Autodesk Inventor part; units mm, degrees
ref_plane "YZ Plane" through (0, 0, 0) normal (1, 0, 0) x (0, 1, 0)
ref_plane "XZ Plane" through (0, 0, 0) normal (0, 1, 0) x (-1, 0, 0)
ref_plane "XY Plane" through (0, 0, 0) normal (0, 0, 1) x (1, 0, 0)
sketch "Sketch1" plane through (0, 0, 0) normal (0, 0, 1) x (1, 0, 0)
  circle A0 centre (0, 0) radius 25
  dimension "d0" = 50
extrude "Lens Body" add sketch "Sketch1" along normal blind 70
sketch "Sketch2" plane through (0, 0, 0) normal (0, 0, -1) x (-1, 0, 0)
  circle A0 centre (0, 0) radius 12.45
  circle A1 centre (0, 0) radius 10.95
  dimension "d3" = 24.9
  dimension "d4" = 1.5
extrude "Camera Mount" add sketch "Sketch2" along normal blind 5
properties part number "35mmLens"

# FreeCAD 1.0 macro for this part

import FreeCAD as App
import Part
import Sketcher
from FreeCAD import Vector

doc = App.newDocument("Part")
body = doc.addObject("PartDesign::Body", "Body")

sketch1 = body.newObject("Sketcher::SketchObject", "Sketch")
sketch1.AttachmentSupport = (doc.getObject("XY_Plane"), [""])
sketch1.MapMode = "FlatFace"
sketch1.addGeometry(Part.Circle(Vector(0, 0, 0), Vector(0, 0, 1), 25), False)
sketch1.addConstraint([
    Sketcher.Constraint("Coincident", 0, 3, -1, 1),
    Sketcher.Constraint("Diameter", 0, 50.0),
])
pad1 = body.newObject("PartDesign::Pad", "Pad")
pad1.Profile = sketch1
pad1.Length = 70

sketch2 = body.newObject("Sketcher::SketchObject", "Sketch001")
sketch2.AttachmentSupport = (doc.getObject("XY_Plane"), [""])
sketch2.MapMode = "FlatFace"
sketch2.addGeometry([
    Part.Circle(Vector(0, 0, 0), Vector(0, 0, 1), 12),
    Part.Circle(Vector(0, 0, 0), Vector(0, 0, 1), 11),
], False)
sketch2.addConstraint([
    Sketcher.Constraint("Coincident", 0, 3, -1, 1),
    Sketcher.Constraint("Coincident", 1, 3, -1, 1),
    Sketcher.Constraint("Diameter", 0, 24.9),
    Sketcher.Constraint("Diameter", 1, 21.9),
])
pad2 = body.newObject("PartDesign::Pad", "Pad001")
pad2.Profile = sketch2
pad2.Length = 5
pad2.Reversed = True

doc.recompute()
